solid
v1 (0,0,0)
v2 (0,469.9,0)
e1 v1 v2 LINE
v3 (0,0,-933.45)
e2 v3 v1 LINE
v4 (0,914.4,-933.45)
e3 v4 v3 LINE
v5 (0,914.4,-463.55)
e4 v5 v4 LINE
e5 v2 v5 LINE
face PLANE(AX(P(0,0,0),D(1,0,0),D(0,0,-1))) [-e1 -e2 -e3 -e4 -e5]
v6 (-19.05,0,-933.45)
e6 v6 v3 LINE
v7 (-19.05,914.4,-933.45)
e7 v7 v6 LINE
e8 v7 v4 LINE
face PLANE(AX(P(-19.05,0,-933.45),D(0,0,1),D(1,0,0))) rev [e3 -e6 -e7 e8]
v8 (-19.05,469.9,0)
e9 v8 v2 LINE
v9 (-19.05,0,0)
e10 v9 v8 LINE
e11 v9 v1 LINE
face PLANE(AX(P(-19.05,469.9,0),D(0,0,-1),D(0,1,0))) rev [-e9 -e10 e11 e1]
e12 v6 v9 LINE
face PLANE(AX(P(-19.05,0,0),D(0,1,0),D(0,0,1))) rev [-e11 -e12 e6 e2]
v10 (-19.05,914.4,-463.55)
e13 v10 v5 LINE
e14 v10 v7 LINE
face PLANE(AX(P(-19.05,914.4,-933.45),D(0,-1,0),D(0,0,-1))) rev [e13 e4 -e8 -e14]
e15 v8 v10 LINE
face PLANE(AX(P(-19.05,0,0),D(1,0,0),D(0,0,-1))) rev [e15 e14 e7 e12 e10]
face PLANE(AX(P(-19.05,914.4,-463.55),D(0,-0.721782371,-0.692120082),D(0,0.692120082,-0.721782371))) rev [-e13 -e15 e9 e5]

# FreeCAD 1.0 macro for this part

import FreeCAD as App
import Part
import Sketcher
from FreeCAD import Vector
Q = App.Units.Quantity

doc = App.newDocument("Part")
body = doc.addObject("PartDesign::Body", "Body")

# Sketch on YZ plane
sketch1 = doc.addObject("Sketcher::SketchObject", "Sketch")
body.addObject(sketch1)
sketch1.AttachmentSupport = (doc.YZ_Plane, [""])
sketch1.MapMode = "FlatFace"
sketch1.addGeometry([
    Part.LineSegment(Vector(0, -933, 0), Vector(0, 0, 0)),  # 0
    Part.LineSegment(Vector(0, 0, 0), Vector(470, 0, 0)),  # 1
    Part.LineSegment(Vector(470, 0, 0), Vector(914, -464, 0)),  # 2
    Part.LineSegment(Vector(914, -464, 0), Vector(914, -933, 0)),  # 3
    Part.LineSegment(Vector(914, -933, 0), Vector(0, -933, 0)),  # 4
], False)
sketch1.addConstraint([
    Sketcher.Constraint("Coincident", 0, 2, 1, 1),
    Sketcher.Constraint("Coincident", 1, 2, 2, 1),
    Sketcher.Constraint("Coincident", 2, 2, 3, 1),
    Sketcher.Constraint("Coincident", 3, 2, 4, 1),
    Sketcher.Constraint("Coincident", 4, 2, 0, 1),
    Sketcher.Constraint("Vertical", 0),
    Sketcher.Constraint("Horizontal", 1),
    Sketcher.Constraint("Vertical", 3),
    Sketcher.Constraint("Horizontal", 4),
    Sketcher.Constraint("Coincident", 0, 2, -1, 1),
    Sketcher.Constraint("Equal", 1, 3),
    Sketcher.Constraint("DistanceX", 4, 2, 4, 1, Q("36 in")),
    Sketcher.Constraint("DistanceX", 1, 1, 1, 2, Q("18.5 in")),
    Sketcher.Constraint("DistanceY", 0, 1, 0, 2, Q("36.75 in")),
])
pad1 = doc.addObject("PartDesign::Pad", "Pad")
body.addObject(pad1)
pad1.Profile = sketch1
pad1.Length = Q("0.75 in")
pad1.Reversed = True

doc.recompute()
